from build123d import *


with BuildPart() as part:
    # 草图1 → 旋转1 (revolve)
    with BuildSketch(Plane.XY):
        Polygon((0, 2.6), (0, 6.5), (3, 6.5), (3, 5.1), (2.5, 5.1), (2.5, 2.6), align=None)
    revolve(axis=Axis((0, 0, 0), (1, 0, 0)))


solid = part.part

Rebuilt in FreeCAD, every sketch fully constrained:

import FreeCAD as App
import Part
import Sketcher
from FreeCAD import Vector
Q = App.Units.Quantity


def add_polygon(sketch, points):
    """Adds a closed chain of lines whose ends are joined by coincident constraints."""
    first, n = sketch.GeometryCount, len(points)
    for a, b in zip(points, points[1:] + points[:1]):
        sketch.addGeometry(Part.LineSegment(App.Vector(*a, 0), App.Vector(*b, 0)), False)
    for i in range(n):
        sketch.addConstraint(Sketcher.Constraint("Coincident", first + i, 2, first + (i + 1) % n, 1))

doc = App.newDocument("Part")
body = doc.addObject("PartDesign::Body", "Body")

# Sketch on XY plane
sketch1 = body.newObject("Sketcher::SketchObject", "Sketch")
sketch1.AttachmentSupport = (doc.getObject("XY_Plane"), [""])
sketch1.MapMode = "FlatFace"
add_polygon(sketch1, [(0, 6.5), (0, 2.6), (2.5, 2.6), (2.5, 5.1), (3, 5.1), (3, 6.5)])  # lines 0-5
sketch1.addConstraint([
    Sketcher.Constraint("Vertical", 0),
    Sketcher.Constraint("Horizontal", 1),
    Sketcher.Constraint("Vertical", 2),
    Sketcher.Constraint("Horizontal", 3),
    Sketcher.Constraint("Vertical", 4),
    Sketcher.Constraint("Horizontal", 5),
    Sketcher.Constraint("PointOnObject", 0, 2, -2),
    Sketcher.Constraint("Equal", 1, 2),
    Sketcher.Constraint("DistanceX", 5, 2, 5, 1, Q("3 mm")),
    Sketcher.Constraint("DistanceX", 1, 1, 1, 2, Q("2.5 mm")),
    Sketcher.Constraint("DistanceY", 0, 2, 0, 1, Q("3.9 mm")),
    Sketcher.Constraint("DistanceY", -1, 1, 0, 2, Q("2.6 mm")),
])
revolution = body.newObject("PartDesign::Revolution", "Revolution")
revolution.Profile = sketch1
revolution.ReferenceAxis = (sketch1, ["H_Axis"])
revolution.Angle = 360

doc.recompute()
